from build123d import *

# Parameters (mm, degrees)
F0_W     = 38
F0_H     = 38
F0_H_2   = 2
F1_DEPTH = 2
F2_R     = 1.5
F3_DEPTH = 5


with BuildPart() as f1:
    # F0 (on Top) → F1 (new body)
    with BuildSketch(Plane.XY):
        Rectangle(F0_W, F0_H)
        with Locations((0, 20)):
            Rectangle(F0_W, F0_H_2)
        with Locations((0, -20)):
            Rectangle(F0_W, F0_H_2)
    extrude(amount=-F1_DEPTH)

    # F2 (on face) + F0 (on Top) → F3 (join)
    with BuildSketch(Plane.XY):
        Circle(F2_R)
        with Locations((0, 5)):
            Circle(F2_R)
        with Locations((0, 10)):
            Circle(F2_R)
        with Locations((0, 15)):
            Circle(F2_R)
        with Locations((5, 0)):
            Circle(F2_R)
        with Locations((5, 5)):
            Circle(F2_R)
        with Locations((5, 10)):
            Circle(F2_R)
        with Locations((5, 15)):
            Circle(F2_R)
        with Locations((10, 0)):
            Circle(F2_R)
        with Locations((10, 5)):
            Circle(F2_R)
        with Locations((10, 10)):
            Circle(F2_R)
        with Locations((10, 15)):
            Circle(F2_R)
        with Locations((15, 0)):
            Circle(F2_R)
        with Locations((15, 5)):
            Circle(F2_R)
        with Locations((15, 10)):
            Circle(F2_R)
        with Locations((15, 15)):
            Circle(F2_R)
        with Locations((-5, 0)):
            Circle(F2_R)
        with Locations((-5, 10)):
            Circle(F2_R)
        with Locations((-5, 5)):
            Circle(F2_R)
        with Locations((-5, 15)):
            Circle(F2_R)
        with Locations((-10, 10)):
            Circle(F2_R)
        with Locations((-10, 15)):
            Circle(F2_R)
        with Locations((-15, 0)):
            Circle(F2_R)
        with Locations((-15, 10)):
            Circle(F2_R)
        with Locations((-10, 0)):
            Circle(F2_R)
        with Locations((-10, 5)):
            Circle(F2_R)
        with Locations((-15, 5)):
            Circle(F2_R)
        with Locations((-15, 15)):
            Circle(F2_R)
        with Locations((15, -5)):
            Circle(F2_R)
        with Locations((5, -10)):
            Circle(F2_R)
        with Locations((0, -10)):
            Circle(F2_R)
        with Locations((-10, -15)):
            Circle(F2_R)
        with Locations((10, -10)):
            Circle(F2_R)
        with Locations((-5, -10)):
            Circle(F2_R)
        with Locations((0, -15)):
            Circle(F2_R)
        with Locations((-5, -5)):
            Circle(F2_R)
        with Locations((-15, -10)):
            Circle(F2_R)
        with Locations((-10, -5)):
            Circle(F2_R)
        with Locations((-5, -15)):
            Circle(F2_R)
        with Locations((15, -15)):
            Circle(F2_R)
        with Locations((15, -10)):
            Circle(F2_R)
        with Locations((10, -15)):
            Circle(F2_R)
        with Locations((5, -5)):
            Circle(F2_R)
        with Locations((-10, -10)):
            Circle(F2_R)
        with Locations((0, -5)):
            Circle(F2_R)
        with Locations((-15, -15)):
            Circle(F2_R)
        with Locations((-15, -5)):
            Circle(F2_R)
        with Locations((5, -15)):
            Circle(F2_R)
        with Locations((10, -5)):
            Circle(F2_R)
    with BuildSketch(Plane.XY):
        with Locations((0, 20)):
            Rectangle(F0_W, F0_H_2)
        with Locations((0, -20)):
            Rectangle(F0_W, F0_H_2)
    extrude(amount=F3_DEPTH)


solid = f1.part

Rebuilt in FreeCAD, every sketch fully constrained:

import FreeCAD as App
import Part
import Sketcher
Q = App.Units.Quantity

doc = App.newDocument("Part")
body = doc.addObject("PartDesign::Body", "Body")

sketch1 = body.newObject("Sketcher::SketchObject", "Sketch")
sketch1.AttachmentSupport = (doc.getObject("XY_Plane"), [""])
sketch1.MapMode = "FlatFace"
sketch1.addGeometry(Part.LineSegment(App.Vector(19, 21, 0), App.Vector(-19, 21, 0)), False)
sketch1.addGeometry(Part.LineSegment(App.Vector(-19, 21, 0), App.Vector(-19, -21, 0)), False)
sketch1.addGeometry(Part.LineSegment(App.Vector(-19, -21, 0), App.Vector(19, -21, 0)), False)
sketch1.addGeometry(Part.LineSegment(App.Vector(19, -21, 0), App.Vector(19, 21, 0)), False)
sketch1.addConstraint(Sketcher.Constraint("Coincident", 0, 2, 1, 1))
sketch1.addConstraint(Sketcher.Constraint("Coincident", 1, 2, 2, 1))
sketch1.addConstraint(Sketcher.Constraint("Coincident", 2, 2, 3, 1))
sketch1.addConstraint(Sketcher.Constraint("Coincident", 3, 2, 0, 1))
sketch1.addConstraint(Sketcher.Constraint("Horizontal", 0))
sketch1.addConstraint(Sketcher.Constraint("Vertical", 1))
sketch1.addConstraint(Sketcher.Constraint("Horizontal", 2))
sketch1.addConstraint(Sketcher.Constraint("Vertical", 3))
sketch1.addConstraint(Sketcher.Constraint("Symmetric", 0, 2, 2, 2, -1, 1))
sketch1.addConstraint(Sketcher.Constraint("DistanceX", 0, 2, 0, 1, Q("38 mm")))
sketch1.addConstraint(Sketcher.Constraint("DistanceY", 1, 2, 1, 1, Q("42 mm")))
pad1 = body.newObject("PartDesign::Pad", "Pad")
pad1.Profile = sketch1
pad1.Length = 2
pad1.Reversed = True

sketch2 = body.newObject("Sketcher::SketchObject", "Sketch001")
sketch2.AttachmentSupport = (doc.getObject("XY_Plane"), [""])
sketch2.MapMode = "FlatFace"
sketch2.addGeometry(Part.Circle(App.Vector(0, 0, 0), App.Vector(0, 0, 1), 1.5), False)
sketch2.addGeometry(Part.Circle(App.Vector(0, 5, 0), App.Vector(0, 0, 1), 1.5), False)
sketch2.addGeometry(Part.Circle(App.Vector(0, 10, 0), App.Vector(0, 0, 1), 1.5), False)
sketch2.addGeometry(Part.Circle(App.Vector(0, 15, 0), App.Vector(0, 0, 1), 1.5), False)
sketch2.addGeometry(Part.Circle(App.Vector(5, 0, 0), App.Vector(0, 0, 1), 1.5), False)
sketch2.addGeometry(Part.Circle(App.Vector(5, 5, 0), App.Vector(0, 0, 1), 1.5), False)
sketch2.addGeometry(Part.Circle(App.Vector(5, 10, 0), App.Vector(0, 0, 1), 1.5), False)
sketch2.addGeometry(Part.Circle(App.Vector(5, 15, 0), App.Vector(0, 0, 1), 1.5), False)
sketch2.addGeometry(Part.Circle(App.Vector(10, 0, 0), App.Vector(0, 0, 1), 1.5), False)
sketch2.addGeometry(Part.Circle(App.Vector(10, 5, 0), App.Vector(0, 0, 1), 1.5), False)
sketch2.addGeometry(Part.Circle(App.Vector(10, 10, 0), App.Vector(0, 0, 1), 1.5), False)
sketch2.addGeometry(Part.Circle(App.Vector(10, 15, 0), App.Vector(0, 0, 1), 1.5), False)
sketch2.addGeometry(Part.Circle(App.Vector(15, 0, 0), App.Vector(0, 0, 1), 1.5), False)
sketch2.addGeometry(Part.Circle(App.Vector(15, 5, 0), App.Vector(0, 0, 1), 1.5), False)
sketch2.addGeometry(Part.Circle(App.Vector(15, 10, 0), App.Vector(0, 0, 1), 1.5), False)
sketch2.addGeometry(Part.Circle(App.Vector(15, 15, 0), App.Vector(0, 0, 1), 1.5), False)
sketch2.addGeometry(Part.Circle(App.Vector(-5, 0, 0), App.Vector(0, 0, 1), 1.5), False)
sketch2.addGeometry(Part.Circle(App.Vector(-5, 10, 0), App.Vector(0, 0, 1), 1.5), False)
sketch2.addGeometry(Part.Circle(App.Vector(-5, 5, 0), App.Vector(0, 0, 1), 1.5), False)
sketch2.addGeometry(Part.Circle(App.Vector(-5, 15, 0), App.Vector(0, 0, 1), 1.5), False)
sketch2.addGeometry(Part.Circle(App.Vector(-10, 10, 0), App.Vector(0, 0, 1), 1.5), False)
sketch2.addGeometry(Part.Circle(App.Vector(-10, 15, 0), App.Vector(0, 0, 1), 1.5), False)
sketch2.addGeometry(Part.Circle(App.Vector(-15, 0, 0), App.Vector(0, 0, 1), 1.5), False)
sketch2.addGeometry(Part.Circle(App.Vector(-15, 10, 0), App.Vector(0, 0, 1), 1.5), False)
sketch2.addGeometry(Part.Circle(App.Vector(-10, 0, 0), App.Vector(0, 0, 1), 1.5), False)
sketch2.addGeometry(Part.Circle(App.Vector(-10, 5, 0), App.Vector(0, 0, 1), 1.5), False)
sketch2.addGeometry(Part.Circle(App.Vector(-15, 5, 0), App.Vector(0, 0, 1), 1.5), False)
sketch2.addGeometry(Part.Circle(App.Vector(-15, 15, 0), App.Vector(0, 0, 1), 1.5), False)
sketch2.addGeometry(Part.Circle(App.Vector(15, -5, 0), App.Vector(0, 0, 1), 1.5), False)
sketch2.addGeometry(Part.Circle(App.Vector(5, -10, 0), App.Vector(0, 0, 1), 1.5), False)
sketch2.addGeometry(Part.Circle(App.Vector(0, -10, 0), App.Vector(0, 0, 1), 1.5), False)
sketch2.addGeometry(Part.Circle(App.Vector(-10, -15, 0), App.Vector(0, 0, 1), 1.5), False)
sketch2.addGeometry(Part.Circle(App.Vector(10, -10, 0), App.Vector(0, 0, 1), 1.5), False)
sketch2.addGeometry(Part.Circle(App.Vector(-5, -10, 0), App.Vector(0, 0, 1), 1.5), False)
sketch2.addGeometry(Part.Circle(App.Vector(0, -15, 0), App.Vector(0, 0, 1), 1.5), False)
sketch2.addGeometry(Part.Circle(App.Vector(-5, -5, 0), App.Vector(0, 0, 1), 1.5), False)
sketch2.addGeometry(Part.Circle(App.Vector(-15, -10, 0), App.Vector(0, 0, 1), 1.5), False)
sketch2.addGeometry(Part.Circle(App.Vector(-10, -5, 0), App.Vector(0, 0, 1), 1.5), False)
sketch2.addGeometry(Part.Circle(App.Vector(-5, -15, 0), App.Vector(0, 0, 1), 1.5), False)
sketch2.addGeometry(Part.Circle(App.Vector(15, -15, 0), App.Vector(0, 0, 1), 1.5), False)
sketch2.addGeometry(Part.Circle(App.Vector(15, -10, 0), App.Vector(0, 0, 1), 1.5), False)
sketch2.addGeometry(Part.Circle(App.Vector(10, -15, 0), App.Vector(0, 0, 1), 1.5), False)
sketch2.addGeometry(Part.Circle(App.Vector(5, -5, 0), App.Vector(0, 0, 1), 1.5), False)
sketch2.addGeometry(Part.Circle(App.Vector(-10, -10, 0), App.Vector(0, 0, 1), 1.5), False)
sketch2.addGeometry(Part.Circle(App.Vector(0, -5, 0), App.Vector(0, 0, 1), 1.5), False)
sketch2.addGeometry(Part.Circle(App.Vector(-15, -15, 0), App.Vector(0, 0, 1), 1.5), False)
sketch2.addGeometry(Part.Circle(App.Vector(-15, -5, 0), App.Vector(0, 0, 1), 1.5), False)
sketch2.addGeometry(Part.Circle(App.Vector(5, -15, 0), App.Vector(0, 0, 1), 1.5), False)
sketch2.addGeometry(Part.Circle(App.Vector(10, -5, 0), App.Vector(0, 0, 1), 1.5), False)
sketch2.addGeometry(Part.LineSegment(App.Vector(-19, 21, 0), App.Vector(-19, 19, 0)), False)
sketch2.addGeometry(Part.LineSegment(App.Vector(-19, 19, 0), App.Vector(19, 19, 0)), False)
sketch2.addGeometry(Part.LineSegment(App.Vector(19, 19, 0), App.Vector(19, 21, 0)), False)
sketch2.addGeometry(Part.LineSegment(App.Vector(19, 21, 0), App.Vector(-19, 21, 0)), False)
sketch2.addGeometry(Part.LineSegment(App.Vector(-19, -19, 0), App.Vector(-19, -21, 0)), False)
sketch2.addGeometry(Part.LineSegment(App.Vector(-19, -21, 0), App.Vector(19, -21, 0)), False)
sketch2.addGeometry(Part.LineSegment(App.Vector(19, -21, 0), App.Vector(19, -19, 0)), False)
sketch2.addGeometry(Part.LineSegment(App.Vector(19, -19, 0), App.Vector(-19, -19, 0)), False)
sketch2.addConstraint(Sketcher.Constraint("Coincident", 49, 2, 50, 1))
sketch2.addConstraint(Sketcher.Constraint("Coincident", 50, 2, 51, 1))
sketch2.addConstraint(Sketcher.Constraint("Coincident", 51, 2, 52, 1))
sketch2.addConstraint(Sketcher.Constraint("Coincident", 52, 2, 49, 1))
sketch2.addConstraint(Sketcher.Constraint("Coincident", 53, 2, 54, 1))
sketch2.addConstraint(Sketcher.Constraint("Coincident", 54, 2, 55, 1))
sketch2.addConstraint(Sketcher.Constraint("Coincident", 55, 2, 56, 1))
sketch2.addConstraint(Sketcher.Constraint("Coincident", 56, 2, 53, 1))
sketch2.addConstraint(Sketcher.Constraint("Vertical", 49))
sketch2.addConstraint(Sketcher.Constraint("Horizontal", 50))
sketch2.addConstraint(Sketcher.Constraint("Vertical", 51))
sketch2.addConstraint(Sketcher.Constraint("Horizontal", 52))
sketch2.addConstraint(Sketcher.Constraint("Vertical", 53))
sketch2.addConstraint(Sketcher.Constraint("Horizontal", 54))
sketch2.addConstraint(Sketcher.Constraint("Vertical", 55))
sketch2.addConstraint(Sketcher.Constraint("Horizontal", 56))
sketch2.addConstraint(Sketcher.Constraint("Coincident", 0, 3, -1, 1))
sketch2.addConstraint(Sketcher.Constraint("Equal", 0, 1))
sketch2.addConstraint(Sketcher.Constraint("Equal", 1, 2))
sketch2.addConstraint(Sketcher.Constraint("Equal", 2, 3))
sketch2.addConstraint(Sketcher.Constraint("Equal", 3, 4))
sketch2.addConstraint(Sketcher.Constraint("Equal", 4, 5))
sketch2.addConstraint(Sketcher.Constraint("Equal", 5, 6))
sketch2.addConstraint(Sketcher.Constraint("Equal", 6, 7))
sketch2.addConstraint(Sketcher.Constraint("Equal", 7, 8))
sketch2.addConstraint(Sketcher.Constraint("Equal", 8, 9))
sketch2.addConstraint(Sketcher.Constraint("Equal", 9, 10))
sketch2.addConstraint(Sketcher.Constraint("Equal", 10, 11))
sketch2.addConstraint(Sketcher.Constraint("Equal", 11, 12))
sketch2.addConstraint(Sketcher.Constraint("Equal", 12, 13))
sketch2.addConstraint(Sketcher.Constraint("Equal", 13, 14))
sketch2.addConstraint(Sketcher.Constraint("Equal", 14, 15))
sketch2.addConstraint(Sketcher.Constraint("Equal", 15, 16))
sketch2.addConstraint(Sketcher.Constraint("Equal", 16, 17))
sketch2.addConstraint(Sketcher.Constraint("Equal", 17, 18))
sketch2.addConstraint(Sketcher.Constraint("Equal", 18, 19))
sketch2.addConstraint(Sketcher.Constraint("Equal", 19, 20))
sketch2.addConstraint(Sketcher.Constraint("Equal", 20, 21))
sketch2.addConstraint(Sketcher.Constraint("Equal", 21, 22))
sketch2.addConstraint(Sketcher.Constraint("Equal", 22, 23))
sketch2.addConstraint(Sketcher.Constraint("Equal", 23, 24))
sketch2.addConstraint(Sketcher.Constraint("Equal", 24, 25))
sketch2.addConstraint(Sketcher.Constraint("Equal", 25, 26))
sketch2.addConstraint(Sketcher.Constraint("Equal", 26, 27))
sketch2.addConstraint(Sketcher.Constraint("Equal", 27, 28))
sketch2.addConstraint(Sketcher.Constraint("Equal", 28, 29))
sketch2.addConstraint(Sketcher.Constraint("Equal", 29, 30))
sketch2.addConstraint(Sketcher.Constraint("Equal", 30, 31))
sketch2.addConstraint(Sketcher.Constraint("Equal", 31, 32))
sketch2.addConstraint(Sketcher.Constraint("Equal", 32, 33))
sketch2.addConstraint(Sketcher.Constraint("Equal", 33, 34))
sketch2.addConstraint(Sketcher.Constraint("Equal", 34, 35))
sketch2.addConstraint(Sketcher.Constraint("Equal", 35, 36))
sketch2.addConstraint(Sketcher.Constraint("Equal", 36, 37))
sketch2.addConstraint(Sketcher.Constraint("Equal", 37, 38))
sketch2.addConstraint(Sketcher.Constraint("Equal", 38, 39))
sketch2.addConstraint(Sketcher.Constraint("Equal", 39, 40))
sketch2.addConstraint(Sketcher.Constraint("Equal", 40, 41))
sketch2.addConstraint(Sketcher.Constraint("Equal", 41, 42))
sketch2.addConstraint(Sketcher.Constraint("Equal", 42, 43))
sketch2.addConstraint(Sketcher.Constraint("Equal", 43, 44))
sketch2.addConstraint(Sketcher.Constraint("Equal", 44, 45))
sketch2.addConstraint(Sketcher.Constraint("Equal", 45, 46))
sketch2.addConstraint(Sketcher.Constraint("Equal", 46, 47))
sketch2.addConstraint(Sketcher.Constraint("Equal", 47, 48))
sketch2.addConstraint(Sketcher.Constraint("Symmetric", 4, 3, 16, 3, -1, 1))
sketch2.addConstraint(Sketcher.Constraint("Symmetric", 12, 3, 22, 3, -1, 1))
sketch2.addConstraint(Sketcher.Constraint("Symmetric", 8, 3, 24, 3, -1, 1))
sketch2.addConstraint(Sketcher.Constraint("Symmetric", 26, 3, 28, 3, -1, 1))
sketch2.addConstraint(Sketcher.Constraint("Symmetric", 17, 3, 29, 3, -1, 1))
sketch2.addConstraint(Sketcher.Constraint("Symmetric", 2, 3, 30, 3, -1, 1))
sketch2.addConstraint(Sketcher.Constraint("Symmetric", 11, 3, 31, 3, -1, 1))
sketch2.addConstraint(Sketcher.Constraint("Symmetric", 20, 3, 32, 3, -1, 1))
sketch2.addConstraint(Sketcher.Constraint("Symmetric", 6, 3, 33, 3, -1, 1))
sketch2.addConstraint(Sketcher.Constraint("Symmetric", 3, 3, 34, 3, -1, 1))
sketch2.addConstraint(Sketcher.Constraint("Symmetric", 5, 3, 35, 3, -1, 1))
sketch2.addConstraint(Sketcher.Constraint("Symmetric", 14, 3, 36, 3, -1, 1))
sketch2.addConstraint(Sketcher.Constraint("Symmetric", 9, 3, 37, 3, -1, 1))
sketch2.addConstraint(Sketcher.Constraint("Symmetric", 7, 3, 38, 3, -1, 1))
sketch2.addConstraint(Sketcher.Constraint("Symmetric", 27, 3, 39, 3, -1, 1))
sketch2.addConstraint(Sketcher.Constraint("Symmetric", 23, 3, 40, 3, -1, 1))
sketch2.addConstraint(Sketcher.Constraint("Symmetric", 21, 3, 41, 3, -1, 1))
sketch2.addConstraint(Sketcher.Constraint("Symmetric", 18, 3, 42, 3, -1, 1))
sketch2.addConstraint(Sketcher.Constraint("Symmetric", 10, 3, 43, 3, -1, 1))
sketch2.addConstraint(Sketcher.Constraint("Symmetric", 1, 3, 44, 3, -1, 1))
sketch2.addConstraint(Sketcher.Constraint("Symmetric", 15, 3, 45, 3, -1, 1))
sketch2.addConstraint(Sketcher.Constraint("Symmetric", 13, 3, 46, 3, -1, 1))
sketch2.addConstraint(Sketcher.Constraint("Symmetric", 19, 3, 47, 3, -1, 1))
sketch2.addConstraint(Sketcher.Constraint("Symmetric", 25, 3, 48, 3, -1, 1))
sketch2.addConstraint(Sketcher.Constraint("Symmetric", 51, 2, 53, 2, -1, 1))
sketch2.addConstraint(Sketcher.Constraint("Symmetric", 49, 2, 55, 2, -1, 1))
sketch2.addConstraint(Sketcher.Constraint("Symmetric", 6, 3, 17, 3, -2))
sketch2.addConstraint(Sketcher.Constraint("Symmetric", 5, 3, 18, 3, -2))
sketch2.addConstraint(Sketcher.Constraint("Symmetric", 7, 3, 19, 3, -2))
sketch2.addConstraint(Sketcher.Constraint("Symmetric", 10, 3, 20, 3, -2))
sketch2.addConstraint(Sketcher.Constraint("Symmetric", 11, 3, 21, 3, -2))
sketch2.addConstraint(Sketcher.Constraint("Symmetric", 14, 3, 23, 3, -2))
sketch2.addConstraint(Sketcher.Constraint("Symmetric", 9, 3, 25, 3, -2))
sketch2.addConstraint(Sketcher.Constraint("Symmetric", 13, 3, 26, 3, -2))
sketch2.addConstraint(Sketcher.Constraint("Symmetric", 15, 3, 27, 3, -2))
sketch2.addConstraint(Sketcher.Constraint("PointOnObject", 1, 3, -2))
sketch2.addConstraint(Sketcher.Constraint("PointOnObject", 2, 3, -2))
sketch2.addConstraint(Sketcher.Constraint("PointOnObject", 3, 3, -2))
sketch2.addConstraint(Sketcher.Constraint("PointOnObject", 4, 3, -1))
sketch2.addConstraint(Sketcher.Constraint("PointOnObject", 8, 3, -1))
sketch2.addConstraint(Sketcher.Constraint("PointOnObject", 12, 3, -1))
sketch2.addConstraint(Sketcher.Constraint("Horizontal", 1, 3, 5, 3))
sketch2.addConstraint(Sketcher.Constraint("Horizontal", 2, 3, 6, 3))
sketch2.addConstraint(Sketcher.Constraint("Horizontal", 3, 3, 7, 3))
sketch2.addConstraint(Sketcher.Constraint("Horizontal", 5, 3, 9, 3))
sketch2.addConstraint(Sketcher.Constraint("Horizontal", 6, 3, 10, 3))
sketch2.addConstraint(Sketcher.Constraint("Horizontal", 7, 3, 11, 3))
sketch2.addConstraint(Sketcher.Constraint("Horizontal", 9, 3, 13, 3))
sketch2.addConstraint(Sketcher.Constraint("Horizontal", 10, 3, 14, 3))
sketch2.addConstraint(Sketcher.Constraint("Horizontal", 11, 3, 15, 3))
sketch2.addConstraint(Sketcher.Constraint("Vertical", 4, 3, 5, 3))
sketch2.addConstraint(Sketcher.Constraint("Vertical", 5, 3, 6, 3))
sketch2.addConstraint(Sketcher.Constraint("Vertical", 6, 3, 7, 3))
sketch2.addConstraint(Sketcher.Constraint("Vertical", 8, 3, 9, 3))
sketch2.addConstraint(Sketcher.Constraint("Vertical", 9, 3, 10, 3))
sketch2.addConstraint(Sketcher.Constraint("Vertical", 10, 3, 11, 3))
sketch2.addConstraint(Sketcher.Constraint("Vertical", 12, 3, 13, 3))
sketch2.addConstraint(Sketcher.Constraint("Vertical", 13, 3, 14, 3))
sketch2.addConstraint(Sketcher.Constraint("Vertical", 14, 3, 15, 3))
sketch2.addConstraint(Sketcher.Constraint("Vertical", 52, 2, 53, 2))
sketch2.addConstraint(Sketcher.Constraint("Diameter", 0, Q("3 mm")))
sketch2.addConstraint(Sketcher.Constraint("DistanceX", 50, 1, 50, 2, Q("38 mm")))
sketch2.addConstraint(Sketcher.Constraint("DistanceY", 49, 2, 49, 1, Q("2 mm")))
sketch2.addConstraint(Sketcher.Constraint("DistanceY", -1, 1, 1, 3, Q("5 mm")))
sketch2.addConstraint(Sketcher.Constraint("DistanceY", -1, 1, 2, 3, Q("10 mm")))
sketch2.addConstraint(Sketcher.Constraint("DistanceY", -1, 1, 3, 3, Q("15 mm")))
sketch2.addConstraint(Sketcher.Constraint("DistanceX", -1, 1, 4, 3, Q("5 mm")))
sketch2.addConstraint(Sketcher.Constraint("DistanceX", -1, 1, 8, 3, Q("10 mm")))
sketch2.addConstraint(Sketcher.Constraint("DistanceX", -1, 1, 12, 3, Q("15 mm")))
sketch2.addConstraint(Sketcher.Constraint("DistanceY", -1, 1, 49, 2, Q("19 mm")))
pad2 = body.newObject("PartDesign::Pad", "Pad001")
pad2.Profile = sketch2
pad2.Length = 5

doc.recompute()
